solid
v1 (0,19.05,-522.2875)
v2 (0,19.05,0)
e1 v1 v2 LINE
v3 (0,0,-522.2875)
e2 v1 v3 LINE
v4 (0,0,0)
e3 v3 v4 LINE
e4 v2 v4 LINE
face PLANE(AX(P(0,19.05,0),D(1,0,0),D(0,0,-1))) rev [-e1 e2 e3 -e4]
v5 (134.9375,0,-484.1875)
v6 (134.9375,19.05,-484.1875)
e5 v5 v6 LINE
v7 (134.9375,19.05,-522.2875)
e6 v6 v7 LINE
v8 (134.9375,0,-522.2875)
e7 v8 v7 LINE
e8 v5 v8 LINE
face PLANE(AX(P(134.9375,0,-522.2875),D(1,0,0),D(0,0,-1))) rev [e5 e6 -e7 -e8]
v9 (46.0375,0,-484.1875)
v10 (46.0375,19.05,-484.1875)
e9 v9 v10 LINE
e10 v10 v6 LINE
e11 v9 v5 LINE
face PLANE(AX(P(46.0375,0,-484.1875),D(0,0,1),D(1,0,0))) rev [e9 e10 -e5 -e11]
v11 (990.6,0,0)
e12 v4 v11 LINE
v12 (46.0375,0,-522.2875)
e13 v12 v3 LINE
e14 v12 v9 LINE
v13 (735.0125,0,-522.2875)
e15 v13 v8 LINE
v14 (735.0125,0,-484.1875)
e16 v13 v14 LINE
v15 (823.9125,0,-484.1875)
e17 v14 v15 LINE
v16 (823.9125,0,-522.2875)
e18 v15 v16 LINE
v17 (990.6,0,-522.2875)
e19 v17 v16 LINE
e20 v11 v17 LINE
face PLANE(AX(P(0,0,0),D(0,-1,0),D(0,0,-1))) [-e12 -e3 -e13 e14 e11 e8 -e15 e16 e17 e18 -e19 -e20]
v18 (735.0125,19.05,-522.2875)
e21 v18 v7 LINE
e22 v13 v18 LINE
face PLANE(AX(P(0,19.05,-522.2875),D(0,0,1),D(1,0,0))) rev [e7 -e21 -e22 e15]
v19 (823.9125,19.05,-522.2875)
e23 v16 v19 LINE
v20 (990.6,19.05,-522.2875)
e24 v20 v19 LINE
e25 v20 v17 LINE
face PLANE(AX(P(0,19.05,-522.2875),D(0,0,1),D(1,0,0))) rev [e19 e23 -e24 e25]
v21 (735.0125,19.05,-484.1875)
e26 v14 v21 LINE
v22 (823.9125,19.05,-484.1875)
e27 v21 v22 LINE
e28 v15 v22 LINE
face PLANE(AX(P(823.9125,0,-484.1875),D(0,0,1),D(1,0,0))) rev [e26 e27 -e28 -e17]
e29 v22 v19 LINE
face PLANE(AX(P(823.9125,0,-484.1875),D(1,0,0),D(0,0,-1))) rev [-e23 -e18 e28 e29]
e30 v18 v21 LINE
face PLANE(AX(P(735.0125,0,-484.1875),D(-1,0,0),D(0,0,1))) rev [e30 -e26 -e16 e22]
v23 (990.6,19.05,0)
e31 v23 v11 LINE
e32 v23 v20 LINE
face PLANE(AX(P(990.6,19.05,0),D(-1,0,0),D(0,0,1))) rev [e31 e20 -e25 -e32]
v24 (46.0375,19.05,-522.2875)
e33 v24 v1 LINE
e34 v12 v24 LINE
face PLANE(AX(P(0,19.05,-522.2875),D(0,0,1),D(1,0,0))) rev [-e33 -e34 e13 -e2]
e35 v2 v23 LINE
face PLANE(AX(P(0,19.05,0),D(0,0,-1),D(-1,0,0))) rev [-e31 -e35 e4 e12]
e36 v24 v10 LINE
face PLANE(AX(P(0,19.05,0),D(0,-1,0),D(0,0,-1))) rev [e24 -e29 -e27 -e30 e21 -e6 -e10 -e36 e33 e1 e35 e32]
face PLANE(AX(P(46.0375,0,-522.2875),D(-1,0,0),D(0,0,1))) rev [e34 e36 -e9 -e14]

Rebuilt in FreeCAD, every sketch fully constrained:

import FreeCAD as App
import Part
import Sketcher

V = App.Vector
Q = App.Units.Quantity

doc = App.newDocument("Part")
body = doc.addObject("PartDesign::Body", "Body")

# Sketch on XZ plane
sketch1 = body.newObject("Sketcher::SketchObject", "Sketch")
sketch1.AttachmentSupport = (doc.getObject("XZ_Plane"), [""])
sketch1.MapMode = "FlatFace"
sketch1.addGeometry(Part.LineSegment(V(0, -522, 0), V(0, 0, 0)), False)
sketch1.addGeometry(Part.LineSegment(V(0, 0, 0), V(991, 0, 0)), False)
sketch1.addGeometry(Part.LineSegment(V(991, 0, 0), V(991, -522, 0)), False)
sketch1.addGeometry(Part.LineSegment(V(991, -522, 0), V(0, -522, 0)), False)
sketch1.addConstraint(Sketcher.Constraint("Coincident", 0, 2, 1, 1))
sketch1.addConstraint(Sketcher.Constraint("Coincident", 1, 2, 2, 1))
sketch1.addConstraint(Sketcher.Constraint("Coincident", 2, 2, 3, 1))
sketch1.addConstraint(Sketcher.Constraint("Coincident", 3, 2, 0, 1))
sketch1.addConstraint(Sketcher.Constraint("Vertical", 0))
sketch1.addConstraint(Sketcher.Constraint("Horizontal", 1))
sketch1.addConstraint(Sketcher.Constraint("Vertical", 2))
sketch1.addConstraint(Sketcher.Constraint("Horizontal", 3))
sketch1.addConstraint(Sketcher.Constraint("Coincident", 0, 2, -1, 1))
sketch1.addConstraint(Sketcher.Constraint("DistanceX", 1, 1, 1, 2, Q("39 in")))
sketch1.addConstraint(Sketcher.Constraint("DistanceY", 0, 1, 0, 2, Q("20.5625 in")))
pad1 = body.newObject("PartDesign::Pad", "Pad")
pad1.Profile = sketch1
pad1.Length = Q("0.75 in")
pad1.Reversed = True

# Sketch on XZ plane
sketch2 = body.newObject("Sketcher::SketchObject", "Sketch001")
sketch2.AttachmentSupport = (doc.getObject("XZ_Plane"), [""])
sketch2.MapMode = "FlatFace"
sketch2.AttachmentOffset = App.Placement(V(0, 0, -0.75 * 25.4), App.Rotation())
sketch2.addGeometry(Part.LineSegment(V(735, -522, 0), V(735, -484, 0)), False)
sketch2.addGeometry(Part.LineSegment(V(735, -484, 0), V(824, -484, 0)), False)
sketch2.addGeometry(Part.LineSegment(V(824, -484, 0), V(824, -522, 0)), False)
sketch2.addGeometry(Part.LineSegment(V(824, -522, 0), V(735, -522, 0)), False)
sketch2.addGeometry(Part.LineSegment(V(46, -522, 0), V(46, -484, 0)), False)
sketch2.addGeometry(Part.LineSegment(V(46, -484, 0), V(135, -484, 0)), False)
sketch2.addGeometry(Part.LineSegment(V(135, -484, 0), V(135, -522, 0)), False)
sketch2.addGeometry(Part.LineSegment(V(135, -522, 0), V(46, -522, 0)), False)
sketch2.addConstraint(Sketcher.Constraint("Coincident", 0, 2, 1, 1))
sketch2.addConstraint(Sketcher.Constraint("Coincident", 1, 2, 2, 1))
sketch2.addConstraint(Sketcher.Constraint("Coincident", 2, 2, 3, 1))
sketch2.addConstraint(Sketcher.Constraint("Coincident", 3, 2, 0, 1))
sketch2.addConstraint(Sketcher.Constraint("Coincident", 4, 2, 5, 1))
sketch2.addConstraint(Sketcher.Constraint("Coincident", 5, 2, 6, 1))
sketch2.addConstraint(Sketcher.Constraint("Coincident", 6, 2, 7, 1))
sketch2.addConstraint(Sketcher.Constraint("Coincident", 7, 2, 4, 1))
sketch2.addConstraint(Sketcher.Constraint("Vertical", 0))
sketch2.addConstraint(Sketcher.Constraint("Horizontal", 1))
sketch2.addConstraint(Sketcher.Constraint("Vertical", 2))
sketch2.addConstraint(Sketcher.Constraint("Horizontal", 3))
sketch2.addConstraint(Sketcher.Constraint("Vertical", 4))
sketch2.addConstraint(Sketcher.Constraint("Horizontal", 5))
sketch2.addConstraint(Sketcher.Constraint("Vertical", 6))
sketch2.addConstraint(Sketcher.Constraint("Horizontal", 7))
sketch2.addConstraint(Sketcher.Constraint("Horizontal", 1, 2, 4, 2))
sketch2.addConstraint(Sketcher.Constraint("Horizontal", 3, 2, 6, 2))
sketch2.addConstraint(Sketcher.Constraint("Equal", 3, 5))
sketch2.addConstraint(Sketcher.Constraint("DistanceX", 1, 1, 1, 2, Q("3.5 in")))
sketch2.addConstraint(Sketcher.Constraint("DistanceY", 0, 1, 0, 2, Q("1.5 in")))
sketch2.addConstraint(Sketcher.Constraint("DistanceX", -1, 1, 0, 2, Q("28.9375 in")))
sketch2.addConstraint(Sketcher.Constraint("DistanceY", 0, 2, -1, 1, Q("19.0625 in")))
sketch2.addConstraint(Sketcher.Constraint("DistanceX", -1, 1, 4, 2, Q("1.8125 in")))
pocket1 = body.newObject("PartDesign::Pocket", "Pocket")
pocket1.Profile = sketch2
pocket1.Type = "ThroughAll"
pocket1.Reversed = True

doc.recompute()
